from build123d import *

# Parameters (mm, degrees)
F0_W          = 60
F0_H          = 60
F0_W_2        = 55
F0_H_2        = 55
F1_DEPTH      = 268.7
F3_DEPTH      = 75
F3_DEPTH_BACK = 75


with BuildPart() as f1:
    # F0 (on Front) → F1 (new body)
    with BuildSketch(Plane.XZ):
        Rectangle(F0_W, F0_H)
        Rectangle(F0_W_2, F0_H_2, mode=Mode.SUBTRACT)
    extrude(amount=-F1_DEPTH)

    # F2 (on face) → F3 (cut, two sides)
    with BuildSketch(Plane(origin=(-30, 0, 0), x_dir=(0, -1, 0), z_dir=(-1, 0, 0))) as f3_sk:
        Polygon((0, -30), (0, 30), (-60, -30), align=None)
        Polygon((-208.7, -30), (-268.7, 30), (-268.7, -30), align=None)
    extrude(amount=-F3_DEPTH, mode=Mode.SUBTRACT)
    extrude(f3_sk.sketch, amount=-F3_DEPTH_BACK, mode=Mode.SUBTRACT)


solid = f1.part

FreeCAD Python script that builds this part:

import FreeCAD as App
import Part
import Sketcher

V = App.Vector
Q = App.Units.Quantity

doc = App.newDocument("Part")
body = doc.addObject("PartDesign::Body", "Body")

# Sketch on XZ plane
sketch1 = doc.addObject("Sketcher::SketchObject", "Sketch")
body.addObject(sketch1)
sketch1.AttachmentSupport = (doc.XZ_Plane, [""])
sketch1.MapMode = "FlatFace"
sketch1.addGeometry(Part.LineSegment(V(-30, 30, 0), V(-30, -30, 0)), False)
sketch1.addGeometry(Part.LineSegment(V(-30, -30, 0), V(30, -30, 0)), False)
sketch1.addGeometry(Part.LineSegment(V(30, -30, 0), V(30, 30, 0)), False)
sketch1.addGeometry(Part.LineSegment(V(30, 30, 0), V(-30, 30, 0)), False)
sketch1.addGeometry(Part.LineSegment(V(28, -28, 0), V(-28, -28, 0)), False)
sketch1.addGeometry(Part.LineSegment(V(-28, -28, 0), V(-28, 28, 0)), False)
sketch1.addGeometry(Part.LineSegment(V(-28, 28, 0), V(28, 28, 0)), False)
sketch1.addGeometry(Part.LineSegment(V(28, 28, 0), V(28, -28, 0)), False)
sketch1.addConstraint(Sketcher.Constraint("Coincident", 0, 2, 1, 1))
sketch1.addConstraint(Sketcher.Constraint("Coincident", 1, 2, 2, 1))
sketch1.addConstraint(Sketcher.Constraint("Coincident", 2, 2, 3, 1))
sketch1.addConstraint(Sketcher.Constraint("Coincident", 3, 2, 0, 1))
sketch1.addConstraint(Sketcher.Constraint("Coincident", 4, 2, 5, 1))
sketch1.addConstraint(Sketcher.Constraint("Coincident", 5, 2, 6, 1))
sketch1.addConstraint(Sketcher.Constraint("Coincident", 6, 2, 7, 1))
sketch1.addConstraint(Sketcher.Constraint("Coincident", 7, 2, 4, 1))
sketch1.addConstraint(Sketcher.Constraint("Vertical", 0))
sketch1.addConstraint(Sketcher.Constraint("Horizontal", 1))
sketch1.addConstraint(Sketcher.Constraint("Vertical", 2))
sketch1.addConstraint(Sketcher.Constraint("Horizontal", 3))
sketch1.addConstraint(Sketcher.Constraint("Horizontal", 4))
sketch1.addConstraint(Sketcher.Constraint("Vertical", 5))
sketch1.addConstraint(Sketcher.Constraint("Horizontal", 6))
sketch1.addConstraint(Sketcher.Constraint("Vertical", 7))
sketch1.addConstraint(Sketcher.Constraint("Symmetric", 0, 2, 2, 2, -1, 1))
sketch1.addConstraint(Sketcher.Constraint("Symmetric", 4, 2, 6, 2, -1, 1))
sketch1.addConstraint(Sketcher.Constraint("Equal", 3, 0))
sketch1.addConstraint(Sketcher.Constraint("Equal", 6, 5))
sketch1.addConstraint(Sketcher.Constraint("DistanceX", 1, 1, 1, 2, Q("60 mm")))
sketch1.addConstraint(Sketcher.Constraint("DistanceX", 4, 2, 4, 1, Q("55 mm")))
pad1 = doc.addObject("PartDesign::Pad", "Pad")
body.addObject(pad1)
pad1.Profile = sketch1
pad1.Length = 268.7
pad1.Reversed = True

# Sketch on YZ plane
sketch2 = doc.addObject("Sketcher::SketchObject", "Sketch001")
body.addObject(sketch2)
sketch2.AttachmentSupport = (doc.YZ_Plane, [""])
sketch2.MapMode = "FlatFace"
sketch2.AttachmentOffset = App.Placement(V(0, 0, -30), App.Rotation())
sketch2.addGeometry(Part.LineSegment(V(0, -30, 0), V(0, 30, 0)), False)
sketch2.addGeometry(Part.LineSegment(V(0, 30, 0), V(60, -30, 0)), False)
sketch2.addGeometry(Part.LineSegment(V(60, -30, 0), V(0, -30, 0)), False)
sketch2.addGeometry(Part.LineSegment(V(209, -30, 0), V(269, 30, 0)), False)
sketch2.addGeometry(Part.LineSegment(V(269, 30, 0), V(269, -30, 0)), False)
sketch2.addGeometry(Part.LineSegment(V(269, -30, 0), V(209, -30, 0)), False)
sketch2.addConstraint(Sketcher.Constraint("Coincident", 0, 2, 1, 1))
sketch2.addConstraint(Sketcher.Constraint("Coincident", 1, 2, 2, 1))
sketch2.addConstraint(Sketcher.Constraint("Coincident", 2, 2, 0, 1))
sketch2.addConstraint(Sketcher.Constraint("Coincident", 3, 2, 4, 1))
sketch2.addConstraint(Sketcher.Constraint("Coincident", 4, 2, 5, 1))
sketch2.addConstraint(Sketcher.Constraint("Coincident", 5, 2, 3, 1))
sketch2.addConstraint(Sketcher.Constraint("Vertical", 0))
sketch2.addConstraint(Sketcher.Constraint("Horizontal", 2))
sketch2.addConstraint(Sketcher.Constraint("Vertical", 4))
sketch2.addConstraint(Sketcher.Constraint("Horizontal", 5))
sketch2.addConstraint(Sketcher.Constraint("Symmetric", 0, 2, 2, 2, -1, 1))
sketch2.addConstraint(Sketcher.Constraint("Perpendicular", 1, 3))
sketch2.addConstraint(Sketcher.Constraint("Horizontal", 0, 2, 3, 2))
sketch2.addConstraint(Sketcher.Constraint("Horizontal", 2, 2, 4, 2))
sketch2.addConstraint(Sketcher.Constraint("Equal", 2, 5))
sketch2.addConstraint(Sketcher.Constraint("DistanceX", 2, 2, 2, 1, Q("60 mm")))
sketch2.addConstraint(Sketcher.Constraint("DistanceX", -1, 1, 3, 2, Q("268.7 mm")))
pocket1 = doc.addObject("PartDesign::Pocket", "Pocket")
body.addObject(pocket1)
pocket1.Profile = sketch2
pocket1.Length = 75
pocket1.Reversed = True
pocket2 = doc.addObject("PartDesign::Pocket", "Pocket001")
body.addObject(pocket2)
pocket2.Profile = sketch2
pocket2.Length = 75
pocket2.Reversed = True

doc.recompute()
